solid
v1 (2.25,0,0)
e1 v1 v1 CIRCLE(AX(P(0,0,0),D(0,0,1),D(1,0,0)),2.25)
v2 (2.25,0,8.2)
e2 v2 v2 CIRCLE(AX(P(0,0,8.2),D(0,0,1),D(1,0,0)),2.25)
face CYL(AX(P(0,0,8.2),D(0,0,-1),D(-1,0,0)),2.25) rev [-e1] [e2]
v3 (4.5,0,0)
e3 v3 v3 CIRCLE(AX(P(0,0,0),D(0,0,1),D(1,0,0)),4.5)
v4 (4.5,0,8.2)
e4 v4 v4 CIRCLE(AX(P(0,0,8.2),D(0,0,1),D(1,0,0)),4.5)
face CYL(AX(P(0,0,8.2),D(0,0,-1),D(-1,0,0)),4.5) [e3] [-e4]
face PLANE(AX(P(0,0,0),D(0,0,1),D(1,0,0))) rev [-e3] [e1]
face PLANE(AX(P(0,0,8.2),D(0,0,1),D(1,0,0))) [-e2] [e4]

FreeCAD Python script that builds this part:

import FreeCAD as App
import Part
import Sketcher
Q = App.Units.Quantity

doc = App.newDocument("Part")
params = doc.addObject("Spreadsheet::Sheet", "Params")
for row, (alias, value) in enumerate([
    ("sketch1_diameter", "9 mm"),
    ("sketch1_diameter2", "4.5 mm"),
    ("pad1_length", "8.2 mm"),
], start=1):
    params.set(f"A{row}", alias)
    params.set(f"B{row}", "=" + value)
    params.setAlias(f"B{row}", alias)

body = doc.addObject("PartDesign::Body", "Body")

# Sketch on XY plane
sketch1 = body.newObject("Sketcher::SketchObject", "Sketch")
sketch1.AttachmentSupport = (doc.getObject("XY_Plane"), [""])
sketch1.MapMode = "FlatFace"
sketch1.addGeometry(Part.Circle(App.Vector(0, 0, 0), App.Vector(0, 0, 1), 4.5), False)
sketch1.addGeometry(Part.Circle(App.Vector(0, 0, 0), App.Vector(0, 0, 1), 2.2), False)
sketch1.addConstraint(Sketcher.Constraint("Coincident", 0, 3, -1, 1))
sketch1.addConstraint(Sketcher.Constraint("Coincident", 1, 3, -1, 1))
sketch1.addConstraint(Sketcher.Constraint("Diameter", 0, Q("9 mm")))
sketch1.addConstraint(Sketcher.Constraint("Diameter", 1, Q("4.5 mm")))
sketch1.setExpression("Constraints[2]", "Params.sketch1_diameter")
sketch1.setExpression("Constraints[3]", "Params.sketch1_diameter2")
pad1 = body.newObject("PartDesign::Pad", "Pad")
pad1.Profile = sketch1
pad1.setExpression("Length", "Params.pad1_length")

doc.recompute()
